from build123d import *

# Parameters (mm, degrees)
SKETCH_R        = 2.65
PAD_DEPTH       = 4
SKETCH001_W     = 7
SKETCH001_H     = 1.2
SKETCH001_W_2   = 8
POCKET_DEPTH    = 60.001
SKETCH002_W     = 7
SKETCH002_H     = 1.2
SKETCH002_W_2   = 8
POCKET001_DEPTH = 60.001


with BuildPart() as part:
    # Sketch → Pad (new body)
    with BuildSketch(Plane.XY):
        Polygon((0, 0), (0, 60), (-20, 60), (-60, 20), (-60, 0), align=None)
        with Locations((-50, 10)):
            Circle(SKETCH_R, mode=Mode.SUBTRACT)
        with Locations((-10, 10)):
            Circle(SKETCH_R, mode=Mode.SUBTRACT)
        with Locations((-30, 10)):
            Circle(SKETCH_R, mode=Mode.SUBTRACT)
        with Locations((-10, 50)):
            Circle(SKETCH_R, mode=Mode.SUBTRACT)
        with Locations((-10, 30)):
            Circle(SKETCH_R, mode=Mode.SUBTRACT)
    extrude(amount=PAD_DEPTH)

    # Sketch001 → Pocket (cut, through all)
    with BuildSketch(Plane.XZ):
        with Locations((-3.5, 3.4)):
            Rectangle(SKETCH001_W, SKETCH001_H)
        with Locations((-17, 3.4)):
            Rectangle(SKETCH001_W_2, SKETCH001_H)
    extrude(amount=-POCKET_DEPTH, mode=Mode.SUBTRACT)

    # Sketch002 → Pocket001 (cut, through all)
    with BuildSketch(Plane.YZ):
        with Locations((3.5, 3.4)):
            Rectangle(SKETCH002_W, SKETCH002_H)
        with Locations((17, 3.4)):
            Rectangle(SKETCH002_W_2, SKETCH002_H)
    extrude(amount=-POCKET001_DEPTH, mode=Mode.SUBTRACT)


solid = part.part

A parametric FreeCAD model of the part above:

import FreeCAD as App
import Part
import Sketcher
Q = App.Units.Quantity


def add_polygon(sketch, points):
    """Adds a closed chain of lines whose ends are joined by coincident constraints."""
    first, n = sketch.GeometryCount, len(points)
    for a, b in zip(points, points[1:] + points[:1]):
        sketch.addGeometry(Part.LineSegment(App.Vector(*a, 0), App.Vector(*b, 0)), False)
    for i in range(n):
        sketch.addConstraint(Sketcher.Constraint("Coincident", first + i, 2, first + (i + 1) % n, 1))

doc = App.newDocument("Part")
body = doc.addObject("PartDesign::Body", "Body")

# Sketch on XY plane
sketch1 = body.newObject("Sketcher::SketchObject", "Sketch")
sketch1.AttachmentSupport = (doc.getObject("XY_Plane"), [""])
sketch1.MapMode = "FlatFace"
add_polygon(sketch1, [(0, 0), (0, 60), (-20, 60), (-60, 20), (-60, 0)])  # lines 0-4
sketch1.addGeometry(Part.Circle(App.Vector(-50, 10, 0), App.Vector(0, 0, 1), 2.65), False)  # 5
sketch1.addGeometry(Part.Circle(App.Vector(-30, 10, 0), App.Vector(0, 0, 1), 2.65), False)  # 6
sketch1.addGeometry(Part.Circle(App.Vector(-10, 10, 0), App.Vector(0, 0, 1), 2.65), False)  # 7
sketch1.addGeometry(Part.Circle(App.Vector(-10, 30, 0), App.Vector(0, 0, 1), 2.65), False)  # 8
sketch1.addGeometry(Part.Circle(App.Vector(-10, 50, 0), App.Vector(0, 0, 1), 2.65), False)  # 9
sketch1.addConstraint([
    Sketcher.Constraint("Vertical", 0),
    Sketcher.Constraint("Horizontal", 1),
    Sketcher.Constraint("Vertical", 3),
    Sketcher.Constraint("Horizontal", 4),
    Sketcher.Constraint("Coincident", 4, 2, -1, 1),
    Sketcher.Constraint("Equal", 5, 6),
    Sketcher.Constraint("Equal", 6, 7),
    Sketcher.Constraint("Equal", 7, 8),
    Sketcher.Constraint("Equal", 8, 9),
    Sketcher.Constraint("Horizontal", 5, 3, 6, 3),
    Sketcher.Constraint("Horizontal", 6, 3, 7, 3),
    Sketcher.Constraint("Vertical", 7, 3, 8, 3),
    Sketcher.Constraint("Vertical", 8, 3, 9, 3),
    Sketcher.Constraint("Equal", 4, 0),
    Sketcher.Constraint("Equal", 1, 3),
    Sketcher.Constraint("Diameter", 5, Q("5.3 mm")),
    Sketcher.Constraint("DistanceX", 1, 2, 1, 1, Q("20 mm")),
    Sketcher.Constraint("DistanceX", 4, 1, 4, 2, Q("60 mm")),
    Sketcher.Constraint("DistanceX", 5, 3, -1, 1, Q("50 mm")),
    Sketcher.Constraint("DistanceY", -1, 1, 5, 3, Q("10 mm")),
    Sketcher.Constraint("DistanceX", 6, 3, -1, 1, Q("30 mm")),
    Sketcher.Constraint("DistanceX", 7, 3, -1, 1, Q("10 mm")),
    Sketcher.Constraint("DistanceY", -1, 1, 8, 3, Q("30 mm")),
    Sketcher.Constraint("DistanceY", -1, 1, 9, 3, Q("50 mm")),
])
pad1 = body.newObject("PartDesign::Pad", "Pad")
pad1.Profile = sketch1
pad1.Length = 4

# Sketch on XZ plane
sketch2 = body.newObject("Sketcher::SketchObject", "Sketch001")
sketch2.AttachmentSupport = (doc.getObject("XZ_Plane"), [""])
sketch2.MapMode = "FlatFace"
add_polygon(sketch2, [(-7, 4), (-7, 2.8), (0, 2.8), (0, 4)])  # lines 0-3
add_polygon(sketch2, [(-21, 4), (-21, 2.8), (-13, 2.8), (-13, 4)])  # lines 4-7
sketch2.addConstraint([
    Sketcher.Constraint("Vertical", 0),
    Sketcher.Constraint("Horizontal", 1),
    Sketcher.Constraint("Vertical", 2),
    Sketcher.Constraint("Horizontal", 3),
    Sketcher.Constraint("Vertical", 4),
    Sketcher.Constraint("Horizontal", 5),
    Sketcher.Constraint("Vertical", 6),
    Sketcher.Constraint("Horizontal", 7),
    Sketcher.Constraint("PointOnObject", 1, 2, -2),
    Sketcher.Constraint("Horizontal", 1, 2, 4, 2),
    Sketcher.Constraint("Horizontal", 3, 2, 6, 2),
    Sketcher.Constraint("DistanceX", 1, 1, 1, 2, Q("7 mm")),
    Sketcher.Constraint("DistanceX", 5, 1, 5, 2, Q("8 mm")),
    Sketcher.Constraint("DistanceY", 0, 2, 0, 1, Q("1.2 mm")),
    Sketcher.Constraint("DistanceY", -1, 1, 2, 2, Q("4 mm")),
    Sketcher.Constraint("DistanceX", 4, 2, -1, 1, Q("21 mm")),
])
pocket1 = body.newObject("PartDesign::Pocket", "Pocket")
pocket1.Profile = sketch2
pocket1.Type = "ThroughAll"

# Sketch on YZ plane
sketch3 = body.newObject("Sketcher::SketchObject", "Sketch002")
sketch3.AttachmentSupport = (doc.getObject("YZ_Plane"), [""])
sketch3.MapMode = "FlatFace"
add_polygon(sketch3, [(0, 4), (0, 2.8), (7, 2.8), (7, 4)])  # lines 0-3
add_polygon(sketch3, [(13, 4), (13, 2.8), (21, 2.8), (21, 4)])  # lines 4-7
sketch3.addConstraint([
    Sketcher.Constraint("Vertical", 0),
    Sketcher.Constraint("Horizontal", 1),
    Sketcher.Constraint("Vertical", 2),
    Sketcher.Constraint("Horizontal", 3),
    Sketcher.Constraint("Vertical", 4),
    Sketcher.Constraint("Horizontal", 5),
    Sketcher.Constraint("Vertical", 6),
    Sketcher.Constraint("Horizontal", 7),
    Sketcher.Constraint("PointOnObject", 0, 2, -2),
    Sketcher.Constraint("Horizontal", 1, 2, 4, 2),
    Sketcher.Constraint("Horizontal", 3, 2, 6, 2),
    Sketcher.Constraint("DistanceX", 1, 1, 1, 2, Q("7 mm")),
    Sketcher.Constraint("DistanceX", 5, 1, 5, 2, Q("8 mm")),
    Sketcher.Constraint("DistanceY", 0, 2, 0, 1, Q("1.2 mm")),
    Sketcher.Constraint("DistanceY", -1, 1, 2, 2, Q("4 mm")),
    Sketcher.Constraint("DistanceX", -1, 1, 4, 2, Q("13 mm")),
])
pocket2 = body.newObject("PartDesign::Pocket", "Pocket001")
pocket2.Profile = sketch3
pocket2.Type = "ThroughAll"

doc.recompute()
